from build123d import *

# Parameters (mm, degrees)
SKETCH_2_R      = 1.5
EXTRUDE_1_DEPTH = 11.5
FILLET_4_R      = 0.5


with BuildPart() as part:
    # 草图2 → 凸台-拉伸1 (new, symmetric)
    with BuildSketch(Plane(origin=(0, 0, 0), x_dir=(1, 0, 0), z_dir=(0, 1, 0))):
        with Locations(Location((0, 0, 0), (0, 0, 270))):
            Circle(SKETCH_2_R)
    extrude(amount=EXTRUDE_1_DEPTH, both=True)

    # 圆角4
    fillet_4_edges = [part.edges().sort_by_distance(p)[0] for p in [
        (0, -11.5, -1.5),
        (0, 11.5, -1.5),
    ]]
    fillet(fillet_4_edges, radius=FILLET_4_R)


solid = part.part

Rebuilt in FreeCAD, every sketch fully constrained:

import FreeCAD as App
import Part
import Sketcher
from FreeCAD import Vector
Q = App.Units.Quantity


def edges_at(feature, points):
    """Names of the edges that pass closest to the given points."""
    edges = feature.Shape.Edges
    near = lambda p: min(range(len(edges)), key=lambda i: edges[i].distToShape(Part.Vertex(*p))[0])
    return sorted({f"Edge{near(p) + 1}" for p in points})

doc = App.newDocument("Part")
body = doc.addObject("PartDesign::Body", "Body")

# Sketch on XZ plane
sketch1 = body.newObject("Sketcher::SketchObject", "Sketch")
sketch1.AttachmentSupport = (doc.getObject("XZ_Plane"), [""])
sketch1.MapMode = "FlatFace"
sketch1.addGeometry(Part.Circle(Vector(0, 0, 0), Vector(0, 0, 1), 1.5), False)
sketch1.addConstraint(Sketcher.Constraint("Coincident", 0, 3, -1, 1))
sketch1.addConstraint(Sketcher.Constraint("Diameter", 0, Q("3 mm")))
pad1 = body.newObject("PartDesign::Pad", "Pad")
pad1.Profile = sketch1
pad1.Length = 23
pad1.Midplane = True
doc.recompute()

fillet = body.newObject("PartDesign::Fillet", "Fillet")
fillet.Base = (pad1, edges_at(pad1, [(0, -11.5, -1.5), (0, 11.5, -1.5)]))
fillet.Radius = 0.5

doc.recompute()
